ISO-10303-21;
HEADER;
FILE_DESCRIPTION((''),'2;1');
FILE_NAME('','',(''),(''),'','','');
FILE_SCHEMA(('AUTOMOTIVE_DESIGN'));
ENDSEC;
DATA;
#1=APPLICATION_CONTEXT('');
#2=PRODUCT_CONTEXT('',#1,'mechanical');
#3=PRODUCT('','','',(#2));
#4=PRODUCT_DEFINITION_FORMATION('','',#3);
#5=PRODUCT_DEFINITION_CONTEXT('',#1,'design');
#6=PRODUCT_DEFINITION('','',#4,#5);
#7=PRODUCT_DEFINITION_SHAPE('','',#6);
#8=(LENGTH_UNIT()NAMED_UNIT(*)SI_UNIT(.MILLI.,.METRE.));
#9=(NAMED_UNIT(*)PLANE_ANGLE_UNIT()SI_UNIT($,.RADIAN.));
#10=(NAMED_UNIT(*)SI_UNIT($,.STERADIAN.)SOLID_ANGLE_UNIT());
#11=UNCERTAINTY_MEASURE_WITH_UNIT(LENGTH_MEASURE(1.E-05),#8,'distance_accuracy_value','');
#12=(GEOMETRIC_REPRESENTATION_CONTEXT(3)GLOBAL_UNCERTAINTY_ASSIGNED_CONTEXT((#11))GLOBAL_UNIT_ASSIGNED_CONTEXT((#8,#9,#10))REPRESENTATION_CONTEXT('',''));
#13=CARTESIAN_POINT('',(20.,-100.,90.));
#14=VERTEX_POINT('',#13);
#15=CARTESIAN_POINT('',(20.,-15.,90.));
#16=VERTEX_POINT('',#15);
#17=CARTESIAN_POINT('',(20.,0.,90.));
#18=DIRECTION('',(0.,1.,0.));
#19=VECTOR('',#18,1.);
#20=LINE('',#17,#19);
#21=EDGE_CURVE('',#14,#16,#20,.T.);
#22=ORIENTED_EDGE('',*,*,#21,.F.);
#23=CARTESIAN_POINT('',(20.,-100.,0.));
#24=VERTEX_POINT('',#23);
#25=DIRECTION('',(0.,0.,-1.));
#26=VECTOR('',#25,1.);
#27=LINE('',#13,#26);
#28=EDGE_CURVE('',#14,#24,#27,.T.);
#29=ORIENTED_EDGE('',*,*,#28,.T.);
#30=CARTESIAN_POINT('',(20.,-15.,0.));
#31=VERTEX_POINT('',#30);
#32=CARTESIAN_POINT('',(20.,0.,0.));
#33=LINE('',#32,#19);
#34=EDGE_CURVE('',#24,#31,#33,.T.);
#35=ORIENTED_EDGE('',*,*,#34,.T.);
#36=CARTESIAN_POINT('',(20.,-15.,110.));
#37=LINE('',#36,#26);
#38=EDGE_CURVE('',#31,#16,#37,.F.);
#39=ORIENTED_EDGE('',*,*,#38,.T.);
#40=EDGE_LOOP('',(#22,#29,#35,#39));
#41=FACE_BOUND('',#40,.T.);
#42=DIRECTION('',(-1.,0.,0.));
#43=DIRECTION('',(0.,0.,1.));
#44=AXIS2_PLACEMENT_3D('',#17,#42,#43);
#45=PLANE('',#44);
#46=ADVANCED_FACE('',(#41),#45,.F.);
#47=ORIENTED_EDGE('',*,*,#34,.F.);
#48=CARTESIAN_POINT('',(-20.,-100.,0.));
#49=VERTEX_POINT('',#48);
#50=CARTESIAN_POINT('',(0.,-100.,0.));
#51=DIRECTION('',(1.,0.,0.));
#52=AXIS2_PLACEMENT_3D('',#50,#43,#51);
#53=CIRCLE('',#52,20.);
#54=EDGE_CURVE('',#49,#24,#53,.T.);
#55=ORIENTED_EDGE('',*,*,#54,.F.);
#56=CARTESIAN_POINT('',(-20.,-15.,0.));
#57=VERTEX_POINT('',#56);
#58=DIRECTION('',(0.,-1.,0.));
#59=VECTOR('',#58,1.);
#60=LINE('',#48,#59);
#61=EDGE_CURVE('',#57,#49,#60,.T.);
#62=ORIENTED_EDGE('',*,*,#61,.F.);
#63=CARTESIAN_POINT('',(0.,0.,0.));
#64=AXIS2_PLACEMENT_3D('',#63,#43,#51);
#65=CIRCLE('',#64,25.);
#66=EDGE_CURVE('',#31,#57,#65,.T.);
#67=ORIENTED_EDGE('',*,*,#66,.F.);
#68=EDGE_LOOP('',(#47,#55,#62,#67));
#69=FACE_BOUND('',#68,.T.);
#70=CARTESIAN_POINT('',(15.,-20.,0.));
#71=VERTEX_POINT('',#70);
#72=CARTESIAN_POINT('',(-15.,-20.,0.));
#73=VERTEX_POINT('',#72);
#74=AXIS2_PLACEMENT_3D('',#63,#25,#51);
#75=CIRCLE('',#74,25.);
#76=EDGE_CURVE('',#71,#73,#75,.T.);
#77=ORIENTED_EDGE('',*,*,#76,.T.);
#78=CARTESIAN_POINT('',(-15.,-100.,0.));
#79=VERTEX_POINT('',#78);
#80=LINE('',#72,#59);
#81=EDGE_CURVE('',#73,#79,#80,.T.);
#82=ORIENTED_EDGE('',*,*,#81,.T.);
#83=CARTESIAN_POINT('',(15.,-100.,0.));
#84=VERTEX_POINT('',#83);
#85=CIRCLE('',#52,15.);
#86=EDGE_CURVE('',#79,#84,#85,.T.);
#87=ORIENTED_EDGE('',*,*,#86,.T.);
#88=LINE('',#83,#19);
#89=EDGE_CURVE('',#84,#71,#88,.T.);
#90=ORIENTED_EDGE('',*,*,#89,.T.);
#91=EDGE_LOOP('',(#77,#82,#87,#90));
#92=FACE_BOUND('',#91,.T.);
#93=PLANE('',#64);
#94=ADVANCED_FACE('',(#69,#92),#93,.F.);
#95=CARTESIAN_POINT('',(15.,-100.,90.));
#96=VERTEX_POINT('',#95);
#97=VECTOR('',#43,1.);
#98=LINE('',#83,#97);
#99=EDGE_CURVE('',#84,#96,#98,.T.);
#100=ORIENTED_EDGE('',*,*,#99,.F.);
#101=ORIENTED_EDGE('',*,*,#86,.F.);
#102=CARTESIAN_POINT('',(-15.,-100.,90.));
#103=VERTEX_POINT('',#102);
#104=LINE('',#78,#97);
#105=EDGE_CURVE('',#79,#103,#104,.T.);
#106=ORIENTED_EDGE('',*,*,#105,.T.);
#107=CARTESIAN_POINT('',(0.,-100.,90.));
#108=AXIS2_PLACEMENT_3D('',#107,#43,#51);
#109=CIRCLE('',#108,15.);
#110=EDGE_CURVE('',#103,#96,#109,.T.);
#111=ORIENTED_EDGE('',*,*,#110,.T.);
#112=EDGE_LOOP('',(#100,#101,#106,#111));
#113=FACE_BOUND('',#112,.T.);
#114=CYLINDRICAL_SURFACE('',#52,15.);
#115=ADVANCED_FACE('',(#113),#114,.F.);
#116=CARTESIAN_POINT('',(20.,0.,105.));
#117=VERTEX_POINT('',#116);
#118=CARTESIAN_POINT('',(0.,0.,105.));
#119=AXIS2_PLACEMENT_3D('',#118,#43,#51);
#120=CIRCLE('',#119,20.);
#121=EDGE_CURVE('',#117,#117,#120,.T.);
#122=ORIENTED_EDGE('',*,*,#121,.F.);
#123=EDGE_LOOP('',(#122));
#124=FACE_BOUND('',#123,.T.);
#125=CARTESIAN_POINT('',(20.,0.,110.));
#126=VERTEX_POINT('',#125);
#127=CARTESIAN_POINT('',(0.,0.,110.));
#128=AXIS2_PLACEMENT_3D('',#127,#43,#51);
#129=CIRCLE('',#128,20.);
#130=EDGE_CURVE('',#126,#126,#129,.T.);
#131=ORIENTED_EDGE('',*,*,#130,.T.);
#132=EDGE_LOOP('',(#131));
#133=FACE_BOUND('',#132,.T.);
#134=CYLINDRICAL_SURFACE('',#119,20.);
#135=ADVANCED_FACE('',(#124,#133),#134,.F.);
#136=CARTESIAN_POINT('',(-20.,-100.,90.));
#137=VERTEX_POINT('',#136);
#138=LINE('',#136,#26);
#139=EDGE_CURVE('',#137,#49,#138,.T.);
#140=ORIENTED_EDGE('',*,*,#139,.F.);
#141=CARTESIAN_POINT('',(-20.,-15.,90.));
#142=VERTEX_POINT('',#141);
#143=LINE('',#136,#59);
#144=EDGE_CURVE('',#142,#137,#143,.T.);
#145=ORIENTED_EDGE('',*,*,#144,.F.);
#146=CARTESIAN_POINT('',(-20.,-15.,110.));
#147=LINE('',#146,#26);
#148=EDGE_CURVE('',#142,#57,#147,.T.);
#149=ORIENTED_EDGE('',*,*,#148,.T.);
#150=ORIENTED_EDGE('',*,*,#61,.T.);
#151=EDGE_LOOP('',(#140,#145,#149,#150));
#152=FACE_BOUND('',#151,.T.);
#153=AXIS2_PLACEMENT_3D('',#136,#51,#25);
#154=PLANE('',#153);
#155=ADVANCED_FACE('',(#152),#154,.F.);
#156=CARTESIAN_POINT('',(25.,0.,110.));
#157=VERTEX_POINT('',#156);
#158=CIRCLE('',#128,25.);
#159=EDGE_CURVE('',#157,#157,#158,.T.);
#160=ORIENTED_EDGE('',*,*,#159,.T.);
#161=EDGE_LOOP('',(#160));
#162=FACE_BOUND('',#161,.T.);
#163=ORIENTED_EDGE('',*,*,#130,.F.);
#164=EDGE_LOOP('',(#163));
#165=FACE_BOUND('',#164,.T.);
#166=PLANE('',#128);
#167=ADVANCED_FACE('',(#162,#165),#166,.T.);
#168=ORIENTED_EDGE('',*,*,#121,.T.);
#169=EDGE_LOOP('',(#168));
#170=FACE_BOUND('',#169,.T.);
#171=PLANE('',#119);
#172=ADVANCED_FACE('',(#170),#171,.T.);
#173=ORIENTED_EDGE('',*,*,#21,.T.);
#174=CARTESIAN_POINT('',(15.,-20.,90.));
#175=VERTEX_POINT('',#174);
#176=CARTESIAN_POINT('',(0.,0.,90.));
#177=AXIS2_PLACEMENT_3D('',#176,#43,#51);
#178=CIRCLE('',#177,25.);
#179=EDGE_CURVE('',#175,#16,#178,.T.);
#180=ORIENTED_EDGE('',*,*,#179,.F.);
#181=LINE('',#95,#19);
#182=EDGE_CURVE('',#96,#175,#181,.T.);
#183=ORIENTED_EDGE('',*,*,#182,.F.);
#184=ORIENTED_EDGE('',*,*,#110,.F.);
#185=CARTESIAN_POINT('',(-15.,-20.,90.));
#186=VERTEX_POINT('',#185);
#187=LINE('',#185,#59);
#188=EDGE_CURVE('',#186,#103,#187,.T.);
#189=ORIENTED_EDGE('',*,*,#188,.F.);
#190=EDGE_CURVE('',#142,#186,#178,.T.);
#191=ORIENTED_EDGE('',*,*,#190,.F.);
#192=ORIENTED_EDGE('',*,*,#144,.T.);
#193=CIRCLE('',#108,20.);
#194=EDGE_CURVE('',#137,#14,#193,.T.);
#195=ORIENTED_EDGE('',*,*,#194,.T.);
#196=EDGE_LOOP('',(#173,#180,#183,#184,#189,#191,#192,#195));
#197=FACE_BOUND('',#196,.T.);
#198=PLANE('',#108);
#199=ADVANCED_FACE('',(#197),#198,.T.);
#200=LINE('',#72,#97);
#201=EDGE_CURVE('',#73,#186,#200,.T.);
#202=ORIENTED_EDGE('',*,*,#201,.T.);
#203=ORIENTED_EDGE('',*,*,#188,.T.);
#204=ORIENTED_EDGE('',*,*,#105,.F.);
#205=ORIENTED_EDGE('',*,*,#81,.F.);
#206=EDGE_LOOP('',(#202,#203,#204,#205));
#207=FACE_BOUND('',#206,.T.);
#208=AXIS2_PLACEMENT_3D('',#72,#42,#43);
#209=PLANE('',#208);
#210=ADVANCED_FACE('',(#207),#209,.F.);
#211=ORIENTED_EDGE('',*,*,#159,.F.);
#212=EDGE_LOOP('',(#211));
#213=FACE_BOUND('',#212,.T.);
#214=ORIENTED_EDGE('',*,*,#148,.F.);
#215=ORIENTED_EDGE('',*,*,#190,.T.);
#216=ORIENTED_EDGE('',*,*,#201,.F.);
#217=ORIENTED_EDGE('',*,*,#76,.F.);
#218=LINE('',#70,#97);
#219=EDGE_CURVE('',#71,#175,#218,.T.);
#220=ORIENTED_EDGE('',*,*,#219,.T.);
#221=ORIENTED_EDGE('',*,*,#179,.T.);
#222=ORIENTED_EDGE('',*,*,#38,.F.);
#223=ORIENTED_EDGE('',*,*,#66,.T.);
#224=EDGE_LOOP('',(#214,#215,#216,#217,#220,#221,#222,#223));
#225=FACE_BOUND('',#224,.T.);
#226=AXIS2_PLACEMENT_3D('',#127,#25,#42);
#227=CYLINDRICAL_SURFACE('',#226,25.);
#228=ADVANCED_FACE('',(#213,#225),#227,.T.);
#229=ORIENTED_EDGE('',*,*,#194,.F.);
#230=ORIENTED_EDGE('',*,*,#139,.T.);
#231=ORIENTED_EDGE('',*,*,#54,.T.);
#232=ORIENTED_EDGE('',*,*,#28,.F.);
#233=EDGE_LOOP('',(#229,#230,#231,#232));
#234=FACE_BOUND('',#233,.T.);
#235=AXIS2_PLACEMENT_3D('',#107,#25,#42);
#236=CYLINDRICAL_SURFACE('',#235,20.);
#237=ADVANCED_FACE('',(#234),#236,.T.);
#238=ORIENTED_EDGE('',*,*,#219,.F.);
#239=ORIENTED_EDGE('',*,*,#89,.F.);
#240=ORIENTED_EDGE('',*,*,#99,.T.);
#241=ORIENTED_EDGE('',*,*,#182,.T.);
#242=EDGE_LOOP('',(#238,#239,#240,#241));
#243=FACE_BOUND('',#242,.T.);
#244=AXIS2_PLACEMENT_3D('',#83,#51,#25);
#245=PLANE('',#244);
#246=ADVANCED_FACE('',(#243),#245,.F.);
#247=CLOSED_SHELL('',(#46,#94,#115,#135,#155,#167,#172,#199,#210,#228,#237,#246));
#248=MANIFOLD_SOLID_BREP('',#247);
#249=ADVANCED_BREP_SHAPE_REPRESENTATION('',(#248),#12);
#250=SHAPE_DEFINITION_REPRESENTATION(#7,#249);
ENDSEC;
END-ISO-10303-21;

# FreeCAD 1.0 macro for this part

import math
import FreeCAD as App
import Part
import Sketcher

doc = App.newDocument("Part")
params = doc.addObject("Spreadsheet::Sheet", "Params")
for row, (alias, value) in enumerate([
    ("sketch1_diameter", "50 mm"),
    ("pad1_length", "110 mm"),
    ("sketch2_diameter", "40 mm"),
    ("pocket1_length", "5 mm"),
    ("sketch3_radius", "20 mm"),
    ("sketch3_height", "100 mm"),
    ("pad2_length", "90 mm"),
    ("sketch4_radius", "15 mm"),
    ("sketch4_radius2", "25 mm"),
    ("sketch4_height", "80 mm"),
], start=1):
    params.set(f"A{row}", alias)
    params.set(f"B{row}", "=" + value)
    params.setAlias(f"B{row}", alias)

body = doc.addObject("PartDesign::Body", "Body")

# Sketch on XY plane
sketch1 = body.newObject("Sketcher::SketchObject", "Sketch")
sketch1.AttachmentSupport = (doc.getObject("XY_Plane"), [""])
sketch1.MapMode = "FlatFace"
sketch1.addGeometry(Part.Circle(App.Vector(0, 0, 0), App.Vector(0, 0, 1), 25), False)
sketch1.addConstraint(Sketcher.Constraint("Coincident", 0, 3, -1, 1))
sketch1.addConstraint(Sketcher.Constraint("Diameter", 0, 50.0))
sketch1.setExpression("Constraints[1]", "Params.sketch1_diameter")
pad1 = body.newObject("PartDesign::Pad", "Pad")
pad1.Profile = sketch1
pad1.setExpression("Length", "Params.pad1_length")

# Sketch on XY plane
sketch2 = body.newObject("Sketcher::SketchObject", "Sketch001")
sketch2.AttachmentSupport = (doc.getObject("XY_Plane"), [""])
sketch2.MapMode = "FlatFace"
sketch2.AttachmentOffset = App.Placement(App.Vector(0, 0, 110), App.Rotation())
sketch2.addGeometry(Part.Circle(App.Vector(0, 0, 0), App.Vector(0, 0, 1), 20), False)
sketch2.addConstraint(Sketcher.Constraint("Coincident", 0, 3, -1, 1))
sketch2.addConstraint(Sketcher.Constraint("Diameter", 0, 40.0))
sketch2.setExpression("Constraints[1]", "Params.sketch2_diameter")
pocket1 = body.newObject("PartDesign::Pocket", "Pocket")
pocket1.Profile = sketch2
pocket1.setExpression("Length", "Params.pocket1_length")

# Sketch on XY plane
sketch3 = body.newObject("Sketcher::SketchObject", "Sketch002")
sketch3.AttachmentSupport = (doc.getObject("XY_Plane"), [""])
sketch3.MapMode = "FlatFace"
sketch3.addGeometry(Part.LineSegment(App.Vector(-20, 0, 0), App.Vector(-20, -100, 0)), False)
sketch3.addGeometry(Part.ArcOfCircle(Part.Circle(App.Vector(0, -100, 0), App.Vector(0, 0, 1), 20), math.radians(180), math.radians(360)), False)
sketch3.addGeometry(Part.LineSegment(App.Vector(20, -100, 0), App.Vector(20, 0, 0)), False)
sketch3.addGeometry(Part.LineSegment(App.Vector(20, 0, 0), App.Vector(-20, 0, 0)), False)
sketch3.addConstraint(Sketcher.Constraint("Tangent", 0, 2, 1, 1))
sketch3.addConstraint(Sketcher.Constraint("Tangent", 1, 2, 2, 1))
sketch3.addConstraint(Sketcher.Constraint("Coincident", 2, 2, 3, 1))
sketch3.addConstraint(Sketcher.Constraint("Coincident", 3, 2, 0, 1))
sketch3.addConstraint(Sketcher.Constraint("Vertical", 0))
sketch3.addConstraint(Sketcher.Constraint("Vertical", 2))
sketch3.addConstraint(Sketcher.Constraint("Horizontal", 3))
sketch3.addConstraint(Sketcher.Constraint("Symmetric", 2, 2, 3, 2, -1, 1))
sketch3.addConstraint(Sketcher.Constraint("Radius", 1, 20.0))
sketch3.addConstraint(Sketcher.Constraint("DistanceY", 0, 2, 0, 1, 100.0))
sketch3.setExpression("Constraints[8]", "Params.sketch3_radius")
sketch3.setExpression("Constraints[9]", "Params.sketch3_height")
pad2 = body.newObject("PartDesign::Pad", "Pad001")
pad2.Profile = sketch3
pad2.setExpression("Length", "Params.pad2_length")

# Sketch on XY plane
sketch4 = body.newObject("Sketcher::SketchObject", "Sketch003")
sketch4.AttachmentSupport = (doc.getObject("XY_Plane"), [""])
sketch4.MapMode = "FlatFace"
sketch4.AttachmentOffset = App.Placement(App.Vector(0, 0, 90), App.Rotation())
sketch4.addGeometry(Part.LineSegment(App.Vector(-15, -20, 0), App.Vector(-15, -100, 0)), False)
sketch4.addGeometry(Part.ArcOfCircle(Part.Circle(App.Vector(0, -100, 0), App.Vector(0, 0, 1), 15), math.radians(180), math.radians(360)), False)
sketch4.addGeometry(Part.LineSegment(App.Vector(15, -100, 0), App.Vector(15, -20, 0)), False)
sketch4.addGeometry(Part.ArcOfCircle(Part.Circle(App.Vector(0, 0, 0), App.Vector(0, 0, 1), 25), math.radians(-127), math.radians(-53)), False)
sketch4.addConstraint(Sketcher.Constraint("Tangent", 0, 2, 1, 1))
sketch4.addConstraint(Sketcher.Constraint("Tangent", 1, 2, 2, 1))
sketch4.addConstraint(Sketcher.Constraint("Coincident", 2, 2, 3, 2))
sketch4.addConstraint(Sketcher.Constraint("Coincident", 3, 1, 0, 1))
sketch4.addConstraint(Sketcher.Constraint("Vertical", 0))
sketch4.addConstraint(Sketcher.Constraint("Vertical", 2))
sketch4.addConstraint(Sketcher.Constraint("Coincident", 3, 3, -1, 1))
sketch4.addConstraint(Sketcher.Constraint("PointOnObject", 1, 3, -2))
sketch4.addConstraint(Sketcher.Constraint("Radius", 1, 15.0))
sketch4.addConstraint(Sketcher.Constraint("Radius", 3, 25.0))
sketch4.addConstraint(Sketcher.Constraint("DistanceY", 0, 2, 0, 1, 80.0))
sketch4.setExpression("Constraints[8]", "Params.sketch4_radius")
sketch4.setExpression("Constraints[9]", "Params.sketch4_radius2")
sketch4.setExpression("Constraints[10]", "Params.sketch4_height")
pocket2 = body.newObject("PartDesign::Pocket", "Pocket001")
pocket2.Profile = sketch4
pocket2.Type = "ThroughAll"

doc.recompute()
